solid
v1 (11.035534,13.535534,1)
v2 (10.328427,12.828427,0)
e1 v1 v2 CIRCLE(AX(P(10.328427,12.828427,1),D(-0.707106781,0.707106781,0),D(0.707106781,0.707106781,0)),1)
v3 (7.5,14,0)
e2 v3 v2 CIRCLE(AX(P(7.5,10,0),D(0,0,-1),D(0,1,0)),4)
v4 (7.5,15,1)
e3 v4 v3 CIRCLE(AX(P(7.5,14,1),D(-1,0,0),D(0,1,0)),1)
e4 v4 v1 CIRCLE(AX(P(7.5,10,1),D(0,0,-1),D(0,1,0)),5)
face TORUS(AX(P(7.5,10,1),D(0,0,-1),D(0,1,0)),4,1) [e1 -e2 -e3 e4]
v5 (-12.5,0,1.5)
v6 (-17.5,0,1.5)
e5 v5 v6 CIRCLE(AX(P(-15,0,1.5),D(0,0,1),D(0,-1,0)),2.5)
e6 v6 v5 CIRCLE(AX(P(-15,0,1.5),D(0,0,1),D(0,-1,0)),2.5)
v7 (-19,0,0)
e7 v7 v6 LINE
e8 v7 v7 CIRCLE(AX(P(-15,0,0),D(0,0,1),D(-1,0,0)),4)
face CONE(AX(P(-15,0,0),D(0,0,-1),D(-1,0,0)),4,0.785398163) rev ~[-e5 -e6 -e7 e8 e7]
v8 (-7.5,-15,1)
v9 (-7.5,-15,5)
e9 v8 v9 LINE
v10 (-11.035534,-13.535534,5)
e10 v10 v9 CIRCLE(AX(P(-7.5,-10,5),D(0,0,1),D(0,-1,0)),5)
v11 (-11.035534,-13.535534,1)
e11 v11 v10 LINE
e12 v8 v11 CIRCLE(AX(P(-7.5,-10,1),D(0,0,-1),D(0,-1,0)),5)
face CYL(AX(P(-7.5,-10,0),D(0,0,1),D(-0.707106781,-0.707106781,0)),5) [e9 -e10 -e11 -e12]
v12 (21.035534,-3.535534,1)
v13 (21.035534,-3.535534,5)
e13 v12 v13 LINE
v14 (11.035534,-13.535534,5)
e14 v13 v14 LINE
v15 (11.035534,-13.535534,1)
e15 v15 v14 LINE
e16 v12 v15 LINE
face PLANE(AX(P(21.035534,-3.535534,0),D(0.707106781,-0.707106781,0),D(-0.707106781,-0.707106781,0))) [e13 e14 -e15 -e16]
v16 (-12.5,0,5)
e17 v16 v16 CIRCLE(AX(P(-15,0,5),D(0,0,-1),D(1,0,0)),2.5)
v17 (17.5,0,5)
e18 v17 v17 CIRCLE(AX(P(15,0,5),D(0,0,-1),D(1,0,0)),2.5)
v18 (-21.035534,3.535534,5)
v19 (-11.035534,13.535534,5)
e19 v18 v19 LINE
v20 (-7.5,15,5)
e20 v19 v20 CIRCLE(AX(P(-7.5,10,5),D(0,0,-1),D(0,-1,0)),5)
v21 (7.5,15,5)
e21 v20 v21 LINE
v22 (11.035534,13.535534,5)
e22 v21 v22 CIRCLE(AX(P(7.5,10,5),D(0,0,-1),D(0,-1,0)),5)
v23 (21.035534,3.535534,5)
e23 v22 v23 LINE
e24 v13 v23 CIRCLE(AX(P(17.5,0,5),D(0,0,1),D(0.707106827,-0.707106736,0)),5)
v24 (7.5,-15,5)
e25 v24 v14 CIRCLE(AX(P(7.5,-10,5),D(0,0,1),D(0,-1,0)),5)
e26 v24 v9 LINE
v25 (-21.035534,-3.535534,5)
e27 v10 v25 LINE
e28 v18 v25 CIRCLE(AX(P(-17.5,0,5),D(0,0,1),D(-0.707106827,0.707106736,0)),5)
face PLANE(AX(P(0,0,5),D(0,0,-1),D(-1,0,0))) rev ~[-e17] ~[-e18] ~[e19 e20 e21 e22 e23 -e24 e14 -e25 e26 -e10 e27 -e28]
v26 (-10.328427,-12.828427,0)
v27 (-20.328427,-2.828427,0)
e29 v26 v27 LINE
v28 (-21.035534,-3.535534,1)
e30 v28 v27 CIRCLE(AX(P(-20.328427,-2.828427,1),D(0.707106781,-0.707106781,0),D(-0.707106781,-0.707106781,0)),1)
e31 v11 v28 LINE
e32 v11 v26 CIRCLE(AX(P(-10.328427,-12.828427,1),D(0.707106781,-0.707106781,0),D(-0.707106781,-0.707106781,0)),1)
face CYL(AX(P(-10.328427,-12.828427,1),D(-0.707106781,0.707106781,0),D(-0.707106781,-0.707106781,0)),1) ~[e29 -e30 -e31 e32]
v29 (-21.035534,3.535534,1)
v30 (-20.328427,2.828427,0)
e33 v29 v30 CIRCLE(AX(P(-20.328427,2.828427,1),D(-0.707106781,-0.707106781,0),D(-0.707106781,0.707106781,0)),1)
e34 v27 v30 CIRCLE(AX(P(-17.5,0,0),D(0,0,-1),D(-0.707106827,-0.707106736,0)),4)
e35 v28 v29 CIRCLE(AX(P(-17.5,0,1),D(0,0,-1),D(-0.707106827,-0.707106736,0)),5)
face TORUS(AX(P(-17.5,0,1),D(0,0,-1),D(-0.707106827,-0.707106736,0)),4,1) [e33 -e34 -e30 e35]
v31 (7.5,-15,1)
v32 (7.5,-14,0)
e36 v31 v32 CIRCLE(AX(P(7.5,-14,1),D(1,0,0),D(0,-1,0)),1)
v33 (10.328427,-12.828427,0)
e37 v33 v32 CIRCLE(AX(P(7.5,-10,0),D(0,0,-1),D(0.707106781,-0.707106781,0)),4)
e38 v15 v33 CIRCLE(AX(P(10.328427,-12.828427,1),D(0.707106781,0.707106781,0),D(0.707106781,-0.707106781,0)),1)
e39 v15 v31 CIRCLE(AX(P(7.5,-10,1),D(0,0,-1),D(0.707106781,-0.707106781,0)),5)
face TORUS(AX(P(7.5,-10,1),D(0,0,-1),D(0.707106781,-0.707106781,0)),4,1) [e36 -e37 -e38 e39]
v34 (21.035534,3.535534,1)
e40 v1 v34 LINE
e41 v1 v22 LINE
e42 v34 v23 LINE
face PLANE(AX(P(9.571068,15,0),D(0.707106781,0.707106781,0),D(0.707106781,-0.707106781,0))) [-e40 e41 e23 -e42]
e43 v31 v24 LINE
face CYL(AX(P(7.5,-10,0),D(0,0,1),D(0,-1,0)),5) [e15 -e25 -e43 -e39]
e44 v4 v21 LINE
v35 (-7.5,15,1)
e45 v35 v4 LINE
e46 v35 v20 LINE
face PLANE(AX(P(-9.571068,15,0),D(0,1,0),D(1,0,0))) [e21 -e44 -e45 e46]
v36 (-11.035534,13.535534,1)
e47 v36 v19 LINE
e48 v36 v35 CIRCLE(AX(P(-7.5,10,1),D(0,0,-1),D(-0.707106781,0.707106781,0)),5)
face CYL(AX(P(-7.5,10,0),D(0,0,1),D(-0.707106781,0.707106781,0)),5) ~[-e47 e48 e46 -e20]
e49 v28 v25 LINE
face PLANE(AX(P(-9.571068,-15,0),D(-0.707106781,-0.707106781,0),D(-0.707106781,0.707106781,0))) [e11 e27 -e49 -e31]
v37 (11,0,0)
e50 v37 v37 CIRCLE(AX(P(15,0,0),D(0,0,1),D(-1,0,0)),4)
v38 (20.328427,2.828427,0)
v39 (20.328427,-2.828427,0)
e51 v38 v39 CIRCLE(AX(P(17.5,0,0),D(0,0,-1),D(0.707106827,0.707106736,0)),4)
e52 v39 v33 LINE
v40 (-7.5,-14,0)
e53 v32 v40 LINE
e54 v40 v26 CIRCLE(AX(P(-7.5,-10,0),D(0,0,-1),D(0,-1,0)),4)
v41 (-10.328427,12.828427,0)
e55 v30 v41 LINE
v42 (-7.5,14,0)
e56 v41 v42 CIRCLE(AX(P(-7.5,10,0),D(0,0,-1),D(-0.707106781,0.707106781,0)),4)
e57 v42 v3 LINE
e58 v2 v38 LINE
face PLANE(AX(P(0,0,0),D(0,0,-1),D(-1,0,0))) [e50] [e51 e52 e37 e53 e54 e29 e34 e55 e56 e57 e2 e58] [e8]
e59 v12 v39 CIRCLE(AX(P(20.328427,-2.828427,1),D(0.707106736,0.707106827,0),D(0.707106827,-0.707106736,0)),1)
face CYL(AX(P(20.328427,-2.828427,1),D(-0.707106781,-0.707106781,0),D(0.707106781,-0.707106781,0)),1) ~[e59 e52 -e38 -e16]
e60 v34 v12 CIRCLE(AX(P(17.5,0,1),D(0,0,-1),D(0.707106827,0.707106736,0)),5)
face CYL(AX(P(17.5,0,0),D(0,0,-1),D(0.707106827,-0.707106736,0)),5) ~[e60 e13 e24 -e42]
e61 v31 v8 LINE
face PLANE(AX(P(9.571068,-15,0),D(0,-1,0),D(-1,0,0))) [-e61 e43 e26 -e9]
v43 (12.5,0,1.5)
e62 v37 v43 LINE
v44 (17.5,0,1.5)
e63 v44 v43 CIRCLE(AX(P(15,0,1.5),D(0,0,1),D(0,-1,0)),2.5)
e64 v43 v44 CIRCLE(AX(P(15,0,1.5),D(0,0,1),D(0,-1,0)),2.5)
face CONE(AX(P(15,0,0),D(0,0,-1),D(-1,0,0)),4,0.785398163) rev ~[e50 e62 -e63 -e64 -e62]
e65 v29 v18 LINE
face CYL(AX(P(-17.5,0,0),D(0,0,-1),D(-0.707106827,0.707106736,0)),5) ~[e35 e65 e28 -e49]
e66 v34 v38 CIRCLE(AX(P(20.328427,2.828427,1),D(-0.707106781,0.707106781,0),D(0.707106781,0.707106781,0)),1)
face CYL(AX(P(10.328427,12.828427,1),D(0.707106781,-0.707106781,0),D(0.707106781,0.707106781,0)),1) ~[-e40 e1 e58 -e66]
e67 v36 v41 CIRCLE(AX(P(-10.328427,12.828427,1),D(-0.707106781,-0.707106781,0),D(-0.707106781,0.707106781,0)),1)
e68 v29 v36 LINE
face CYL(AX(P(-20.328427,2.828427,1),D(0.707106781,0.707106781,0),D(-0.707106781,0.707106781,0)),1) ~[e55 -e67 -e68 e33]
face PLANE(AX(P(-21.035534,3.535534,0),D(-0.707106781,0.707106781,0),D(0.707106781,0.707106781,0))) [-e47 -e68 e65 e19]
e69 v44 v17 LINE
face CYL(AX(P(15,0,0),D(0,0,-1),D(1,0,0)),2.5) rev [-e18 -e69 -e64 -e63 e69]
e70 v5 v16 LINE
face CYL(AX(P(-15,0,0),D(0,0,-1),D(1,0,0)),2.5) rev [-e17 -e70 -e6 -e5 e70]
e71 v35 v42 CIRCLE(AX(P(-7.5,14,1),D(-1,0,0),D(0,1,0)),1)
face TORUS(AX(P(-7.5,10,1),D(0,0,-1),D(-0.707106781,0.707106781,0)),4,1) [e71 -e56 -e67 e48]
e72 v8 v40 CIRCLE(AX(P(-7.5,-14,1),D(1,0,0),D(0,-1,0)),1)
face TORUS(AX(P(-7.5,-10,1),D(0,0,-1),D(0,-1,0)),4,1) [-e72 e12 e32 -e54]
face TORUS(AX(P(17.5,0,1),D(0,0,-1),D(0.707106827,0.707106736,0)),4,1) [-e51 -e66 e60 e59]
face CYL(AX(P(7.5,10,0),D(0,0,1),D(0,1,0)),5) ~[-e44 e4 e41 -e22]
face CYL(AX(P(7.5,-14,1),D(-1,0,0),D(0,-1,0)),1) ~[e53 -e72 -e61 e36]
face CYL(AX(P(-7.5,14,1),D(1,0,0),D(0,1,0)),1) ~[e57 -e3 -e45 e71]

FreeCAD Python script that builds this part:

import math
import FreeCAD as App
import Part
import Sketcher

V = App.Vector


def edges_at(feature, points):
    """Names of the edges that pass closest to the given points."""
    edges = feature.Shape.Edges
    near = lambda p: min(range(len(edges)), key=lambda i: edges[i].distToShape(Part.Vertex(*p))[0])
    return sorted({f"Edge{near(p) + 1}" for p in points})

doc = App.newDocument("Part")
body = doc.addObject("PartDesign::Body", "Body")

# Sketch on XY plane
sketch1 = body.newObject("Sketcher::SketchObject", "Sketch")
sketch1.AttachmentSupport = (doc.getObject("XY_Plane"), [""])
sketch1.MapMode = "FlatFace"
sketch1.addGeometry([
    Part.LineSegment(V(-9.6, 15, 0), V(-21, 3.5, 0)),  # 0
    Part.ArcOfCircle(Part.Circle(V(-17.5, 0, 0), V(0, 0, 1), 5), math.radians(135), math.radians(225)),  # 1
    Part.LineSegment(V(-21, -3.5, 0), V(-9.6, -15, 0)),  # 2
    Part.LineSegment(V(-9.6, -15, 0), V(9.6, -15, 0)),  # 3
    Part.LineSegment(V(9.6, -15, 0), V(21, -3.5, 0)),  # 4
    Part.ArcOfCircle(Part.Circle(V(17.5, 0, 0), V(0, 0, 1), 5), math.radians(-45), math.radians(45)),  # 5
    Part.LineSegment(V(21, 3.5, 0), V(9.6, 15, 0)),  # 6
    Part.LineSegment(V(9.6, 15, 0), V(-9.6, 15, 0)),  # 7
    Part.Circle(V(15, 0, 0), V(0, 0, 1), 2.5),  # 8
    Part.Circle(V(-15, 0, 0), V(0, 0, 1), 2.5),  # 9
], False)
sketch1.addConstraint([
    Sketcher.Constraint("Tangent", 0, 2, 1, 1),
    Sketcher.Constraint("Tangent", 1, 2, 2, 1),
    Sketcher.Constraint("Coincident", 2, 2, 3, 1),
    Sketcher.Constraint("Coincident", 3, 2, 4, 1),
    Sketcher.Constraint("Tangent", 4, 2, 5, 1),
    Sketcher.Constraint("Tangent", 5, 2, 6, 1),
    Sketcher.Constraint("Coincident", 6, 2, 7, 1),
    Sketcher.Constraint("Coincident", 7, 2, 0, 1),
    Sketcher.Constraint("Horizontal", 3),
    Sketcher.Constraint("Horizontal", 7),
    Sketcher.Constraint("Equal", 1, 5),
    Sketcher.Constraint("Equal", 8, 9),
    Sketcher.Constraint("Symmetric", 1, 3, 5, 3, -1, 1),
    Sketcher.Constraint("Symmetric", 8, 3, 9, 3, -1, 1),
    Sketcher.Constraint("Symmetric", 2, 2, 6, 2, -1, 1),
    Sketcher.Constraint("Symmetric", 1, 2, 4, 2, -2),
    Sketcher.Constraint("PointOnObject", 8, 3, -1),
    Sketcher.Constraint("Perpendicular", 0, 2),
    Sketcher.Constraint("Perpendicular", 2, 4),
    Sketcher.Constraint("Diameter", 8, 5.0),
    Sketcher.Constraint("Radius", 1, 5.0),
    Sketcher.Constraint("DistanceX", -1, 1, 8, 3, 15.0),
    Sketcher.Constraint("DistanceY", 2, 2, -1, 1, 15.0),
    Sketcher.Constraint("DistanceX", 1, 3, 5, 3, 34.999999),
])
pad1 = body.newObject("PartDesign::Pad", "Pad")
pad1.Profile = sketch1
pad1.Length = 5
doc.recompute()

fillet = body.newObject("PartDesign::Fillet", "Fillet")
fillet.Base = (pad1, edges_at(pad1, [
    (9.571, -15, 2.5),
    (-9.571, -15, 2.5),
    (9.571, 15, 2.5),
    (-9.571, 15, 2.5),
]))
fillet.Radius = 5
doc.recompute()

fillet2 = body.newObject("PartDesign::Fillet", "Fillet001")
fillet2.Base = (fillet, edges_at(fillet, [
    (-16.036, 8.536, 0),
    (-9.413, 14.619, 0),
    (-22.5, 0, 0),
    (0, 15, 0),
    (-16.036, -8.536, 0),
    (9.413, 14.619, 0),
    (-9.413, -14.619, 0),
    (16.036, 8.536, 0),
    (0, -15, 0),
    (22.5, 0, 0),
    (9.413, -14.619, 0),
    (16.036, -8.536, 0),
    (12.5, 0, 0),
    (-17.5, 0, 0),
]))
fillet2.Radius = 1

# Sketch on XY plane
sketch2 = body.newObject("Sketcher::SketchObject", "Sketch001")
sketch2.AttachmentSupport = (doc.getObject("XY_Plane"), [""])
sketch2.MapMode = "FlatFace"
sketch2.addGeometry([
    Part.Circle(V(-15, 0, 0), V(0, 0, 1), 2.5),
    Part.Circle(V(15, 0, 0), V(0, 0, 1), 2.5),
], False)
sketch2.addConstraint([
    Sketcher.Constraint("Equal", 0, 1),
    Sketcher.Constraint("Symmetric", 0, 3, 1, 3, -1, 1),
    Sketcher.Constraint("PointOnObject", 0, 3, -1),
    Sketcher.Constraint("Diameter", 0, 5.0),
    Sketcher.Constraint("DistanceX", 0, 3, -1, 1, 15.0),
])
doc.recompute()
hole = body.newObject("PartDesign::Hole", "Hole")
hole.Profile = sketch2
hole.ThreadType = "None"
hole.Diameter = 5
hole.DepthType = "ThroughAll"
hole.HoleCutType = "Countersink"
hole.HoleCutDiameter = 8
hole.HoleCutCountersinkAngle = 90
hole.Reversed = True

doc.recompute()
